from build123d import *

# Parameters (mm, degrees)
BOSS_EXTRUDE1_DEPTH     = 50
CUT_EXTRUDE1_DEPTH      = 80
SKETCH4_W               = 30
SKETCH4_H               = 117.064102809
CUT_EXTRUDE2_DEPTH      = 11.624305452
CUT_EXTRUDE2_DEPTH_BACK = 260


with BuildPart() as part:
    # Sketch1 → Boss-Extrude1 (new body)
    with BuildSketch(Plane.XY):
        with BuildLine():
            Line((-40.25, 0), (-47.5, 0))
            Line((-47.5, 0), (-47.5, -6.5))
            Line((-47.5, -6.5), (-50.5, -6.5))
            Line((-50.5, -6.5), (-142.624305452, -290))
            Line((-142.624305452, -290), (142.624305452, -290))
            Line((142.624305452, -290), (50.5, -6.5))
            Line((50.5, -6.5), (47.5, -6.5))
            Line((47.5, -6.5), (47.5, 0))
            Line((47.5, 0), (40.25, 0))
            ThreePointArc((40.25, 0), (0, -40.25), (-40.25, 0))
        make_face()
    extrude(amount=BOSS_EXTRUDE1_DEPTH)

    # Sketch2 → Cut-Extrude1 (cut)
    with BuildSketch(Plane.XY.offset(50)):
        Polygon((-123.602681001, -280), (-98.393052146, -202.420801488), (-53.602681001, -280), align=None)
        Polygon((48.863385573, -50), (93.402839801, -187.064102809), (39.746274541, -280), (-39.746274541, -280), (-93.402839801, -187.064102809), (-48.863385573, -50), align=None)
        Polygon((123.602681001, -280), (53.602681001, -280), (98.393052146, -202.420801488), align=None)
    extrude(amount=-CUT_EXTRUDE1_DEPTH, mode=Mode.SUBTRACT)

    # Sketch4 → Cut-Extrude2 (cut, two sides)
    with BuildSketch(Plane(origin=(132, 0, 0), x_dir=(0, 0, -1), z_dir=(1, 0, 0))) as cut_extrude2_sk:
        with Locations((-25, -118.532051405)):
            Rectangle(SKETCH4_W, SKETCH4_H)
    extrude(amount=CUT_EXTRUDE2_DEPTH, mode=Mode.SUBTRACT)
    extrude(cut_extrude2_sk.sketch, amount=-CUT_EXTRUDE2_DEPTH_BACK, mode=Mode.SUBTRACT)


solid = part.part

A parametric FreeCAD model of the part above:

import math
import FreeCAD as App
import Part
import Sketcher
Q = App.Units.Quantity


def add_polygon(sketch, points):
    """Adds a closed chain of lines whose ends are joined by coincident constraints."""
    first, n = sketch.GeometryCount, len(points)
    for a, b in zip(points, points[1:] + points[:1]):
        sketch.addGeometry(Part.LineSegment(App.Vector(*a, 0), App.Vector(*b, 0)), False)
    for i in range(n):
        sketch.addConstraint(Sketcher.Constraint("Coincident", first + i, 2, first + (i + 1) % n, 1))

doc = App.newDocument("Part")
body = doc.addObject("PartDesign::Body", "Body")

# Sketch on XY plane
sketch1 = body.newObject("Sketcher::SketchObject", "Sketch")
sketch1.AttachmentSupport = (doc.getObject("XY_Plane"), [""])
sketch1.MapMode = "FlatFace"
sketch1.addGeometry(Part.LineSegment(App.Vector(-40.2, 0, 0), App.Vector(-47.5, 0, 0)), False)
sketch1.addGeometry(Part.LineSegment(App.Vector(-47.5, 0, 0), App.Vector(-47.5, -6.5, 0)), False)
sketch1.addGeometry(Part.LineSegment(App.Vector(-47.5, -6.5, 0), App.Vector(-50.5, -6.5, 0)), False)
sketch1.addGeometry(Part.LineSegment(App.Vector(-50.5, -6.5, 0), App.Vector(-142.6, -290, 0)), False)
sketch1.addGeometry(Part.LineSegment(App.Vector(-142.6, -290, 0), App.Vector(142.6, -290, 0)), False)
sketch1.addGeometry(Part.LineSegment(App.Vector(142.6, -290, 0), App.Vector(50.5, -6.5, 0)), False)
sketch1.addGeometry(Part.LineSegment(App.Vector(50.5, -6.5, 0), App.Vector(47.5, -6.5, 0)), False)
sketch1.addGeometry(Part.LineSegment(App.Vector(47.5, -6.5, 0), App.Vector(47.5, 0, 0)), False)
sketch1.addGeometry(Part.LineSegment(App.Vector(47.5, 0, 0), App.Vector(40.2, 0, 0)), False)
sketch1.addGeometry(Part.ArcOfCircle(Part.Circle(App.Vector(0, 0, 0), App.Vector(0, 0, 1), 40.2), math.radians(180), math.radians(360)), False)
sketch1.addConstraint(Sketcher.Constraint("Coincident", 0, 2, 1, 1))
sketch1.addConstraint(Sketcher.Constraint("Coincident", 1, 2, 2, 1))
sketch1.addConstraint(Sketcher.Constraint("Coincident", 2, 2, 3, 1))
sketch1.addConstraint(Sketcher.Constraint("Coincident", 3, 2, 4, 1))
sketch1.addConstraint(Sketcher.Constraint("Coincident", 4, 2, 5, 1))
sketch1.addConstraint(Sketcher.Constraint("Coincident", 5, 2, 6, 1))
sketch1.addConstraint(Sketcher.Constraint("Coincident", 6, 2, 7, 1))
sketch1.addConstraint(Sketcher.Constraint("Coincident", 7, 2, 8, 1))
sketch1.addConstraint(Sketcher.Constraint("Coincident", 8, 2, 9, 2))
sketch1.addConstraint(Sketcher.Constraint("Coincident", 9, 1, 0, 1))
sketch1.addConstraint(Sketcher.Constraint("Horizontal", 0))
sketch1.addConstraint(Sketcher.Constraint("Vertical", 1))
sketch1.addConstraint(Sketcher.Constraint("Horizontal", 2))
sketch1.addConstraint(Sketcher.Constraint("Horizontal", 4))
sketch1.addConstraint(Sketcher.Constraint("Horizontal", 6))
sketch1.addConstraint(Sketcher.Constraint("Vertical", 7))
sketch1.addConstraint(Sketcher.Constraint("Horizontal", 8))
sketch1.addConstraint(Sketcher.Constraint("Coincident", 9, 3, -1, 1))
sketch1.addConstraint(Sketcher.Constraint("Symmetric", 0, 2, 7, 2, -1, 1))
sketch1.addConstraint(Sketcher.Constraint("Symmetric", 2, 2, 5, 2, -2))
sketch1.addConstraint(Sketcher.Constraint("PointOnObject", 0, 2, -1))
sketch1.addConstraint(Sketcher.Constraint("Equal", 3, 5))
sketch1.addConstraint(Sketcher.Constraint("DistanceX", 2, 2, 2, 1, Q("3 mm")))
sketch1.addConstraint(Sketcher.Constraint("Radius", 9, Q("40.25 mm")))
sketch1.addConstraint(Sketcher.Constraint("DistanceY", 1, 2, 1, 1, Q("6.5 mm")))
sketch1.addConstraint(Sketcher.Constraint("DistanceY", 3, 2, -1, 1, Q("290 mm")))
sketch1.addConstraint(Sketcher.Constraint("DistanceX", 1, 2, 5, 2, Q("98 mm")))
sketch1.addConstraint(Sketcher.Constraint("Distance", 3, Q("298.092498 mm")))
pad1 = body.newObject("PartDesign::Pad", "Pad")
pad1.Profile = sketch1
pad1.Length = 50

# Sketch on XY plane
sketch2 = body.newObject("Sketcher::SketchObject", "Sketch001")
sketch2.AttachmentSupport = (doc.getObject("XY_Plane"), [""])
sketch2.MapMode = "FlatFace"
sketch2.AttachmentOffset = App.Placement(App.Vector(0, 0, 50), App.Rotation())
add_polygon(sketch2, [(-98, -202), (-124, -280), (-54, -280)])  # lines 0-2
add_polygon(sketch2, [(93, -187), (49, -50), (-49, -50), (-93, -187), (-40, -280), (40, -280)])  # lines 3-8
add_polygon(sketch2, [(54, -280), (124, -280), (98, -202)])  # lines 9-11
sketch2.addConstraint(Sketcher.Constraint("Horizontal", 1))
sketch2.addConstraint(Sketcher.Constraint("Horizontal", 4))
sketch2.addConstraint(Sketcher.Constraint("Horizontal", 7))
sketch2.addConstraint(Sketcher.Constraint("Horizontal", 9))
sketch2.addConstraint(Sketcher.Constraint("Symmetric", 5, 2, 8, 2, -2))
sketch2.addConstraint(Sketcher.Constraint("Symmetric", 0, 2, 9, 2, -2))
sketch2.addConstraint(Sketcher.Constraint("Symmetric", 2, 2, 10, 2, -2))
sketch2.addConstraint(Sketcher.Constraint("Parallel", 0, 5))
sketch2.addConstraint(Sketcher.Constraint("Parallel", 2, 6))
sketch2.addConstraint(Sketcher.Constraint("Parallel", 3, 10))
sketch2.addConstraint(Sketcher.Constraint("Parallel", 8, 11))
sketch2.addConstraint(Sketcher.Constraint("Horizontal", 1, 2, 6, 2))
sketch2.addConstraint(Sketcher.Constraint("Equal", 1, 9))
sketch2.addConstraint(Sketcher.Constraint("DistanceX", 1, 1, 1, 2, Q("70 mm")))
sketch2.addConstraint(Sketcher.Constraint("Angle", 2, Q("120 deg")))
sketch2.addConstraint(Sketcher.Constraint("DistanceY", 0, 2, -1, 1, Q("280 mm")))
sketch2.addConstraint(Sketcher.Constraint("DistanceY", 3, 2, -1, 1, Q("50 mm")))
sketch2.addConstraint(Sketcher.Constraint("DistanceX", 4, 2, 4, 1, Q("97.726771 mm")))
sketch2.addConstraint(Sketcher.Constraint("DistanceX", 7, 1, 7, 2, Q("79.492549 mm")))
sketch2.addConstraint(Sketcher.Constraint("DistanceY", 2, 2, -1, 1, Q("202.420801 mm")))
sketch2.addConstraint(Sketcher.Constraint("DistanceX", 0, 2, -1, 1, Q("123.602681 mm")))
pocket1 = body.newObject("PartDesign::Pocket", "Pocket")
pocket1.Profile = sketch2
pocket1.Length = 80

# Sketch on YZ plane
sketch3 = body.newObject("Sketcher::SketchObject", "Sketch002")
sketch3.AttachmentSupport = (doc.getObject("YZ_Plane"), [""])
sketch3.MapMode = "FlatFace"
sketch3.AttachmentOffset = App.Placement(App.Vector(0, 0, 132), App.Rotation())
add_polygon(sketch3, [(-60, 40), (-177, 40), (-177, 10), (-60, 10)])  # lines 0-3
sketch3.addConstraint(Sketcher.Constraint("Horizontal", 0))
sketch3.addConstraint(Sketcher.Constraint("Vertical", 1))
sketch3.addConstraint(Sketcher.Constraint("Horizontal", 2))
sketch3.addConstraint(Sketcher.Constraint("Vertical", 3))
sketch3.addConstraint(Sketcher.Constraint("DistanceY", 1, 2, 1, 1, Q("30 mm")))
sketch3.addConstraint(Sketcher.Constraint("DistanceY", -1, 1, 0, 2, Q("40 mm")))
sketch3.addConstraint(Sketcher.Constraint("DistanceX", 2, 2, -1, 1, Q("60 mm")))
sketch3.addConstraint(Sketcher.Constraint("DistanceX", 0, 2, 0, 1, Q("117.064103 mm")))
pocket2 = body.newObject("PartDesign::Pocket", "Pocket001")
pocket2.Profile = sketch3
pocket2.Type = "ThroughAll"
pocket2.Midplane = True

doc.recompute()
